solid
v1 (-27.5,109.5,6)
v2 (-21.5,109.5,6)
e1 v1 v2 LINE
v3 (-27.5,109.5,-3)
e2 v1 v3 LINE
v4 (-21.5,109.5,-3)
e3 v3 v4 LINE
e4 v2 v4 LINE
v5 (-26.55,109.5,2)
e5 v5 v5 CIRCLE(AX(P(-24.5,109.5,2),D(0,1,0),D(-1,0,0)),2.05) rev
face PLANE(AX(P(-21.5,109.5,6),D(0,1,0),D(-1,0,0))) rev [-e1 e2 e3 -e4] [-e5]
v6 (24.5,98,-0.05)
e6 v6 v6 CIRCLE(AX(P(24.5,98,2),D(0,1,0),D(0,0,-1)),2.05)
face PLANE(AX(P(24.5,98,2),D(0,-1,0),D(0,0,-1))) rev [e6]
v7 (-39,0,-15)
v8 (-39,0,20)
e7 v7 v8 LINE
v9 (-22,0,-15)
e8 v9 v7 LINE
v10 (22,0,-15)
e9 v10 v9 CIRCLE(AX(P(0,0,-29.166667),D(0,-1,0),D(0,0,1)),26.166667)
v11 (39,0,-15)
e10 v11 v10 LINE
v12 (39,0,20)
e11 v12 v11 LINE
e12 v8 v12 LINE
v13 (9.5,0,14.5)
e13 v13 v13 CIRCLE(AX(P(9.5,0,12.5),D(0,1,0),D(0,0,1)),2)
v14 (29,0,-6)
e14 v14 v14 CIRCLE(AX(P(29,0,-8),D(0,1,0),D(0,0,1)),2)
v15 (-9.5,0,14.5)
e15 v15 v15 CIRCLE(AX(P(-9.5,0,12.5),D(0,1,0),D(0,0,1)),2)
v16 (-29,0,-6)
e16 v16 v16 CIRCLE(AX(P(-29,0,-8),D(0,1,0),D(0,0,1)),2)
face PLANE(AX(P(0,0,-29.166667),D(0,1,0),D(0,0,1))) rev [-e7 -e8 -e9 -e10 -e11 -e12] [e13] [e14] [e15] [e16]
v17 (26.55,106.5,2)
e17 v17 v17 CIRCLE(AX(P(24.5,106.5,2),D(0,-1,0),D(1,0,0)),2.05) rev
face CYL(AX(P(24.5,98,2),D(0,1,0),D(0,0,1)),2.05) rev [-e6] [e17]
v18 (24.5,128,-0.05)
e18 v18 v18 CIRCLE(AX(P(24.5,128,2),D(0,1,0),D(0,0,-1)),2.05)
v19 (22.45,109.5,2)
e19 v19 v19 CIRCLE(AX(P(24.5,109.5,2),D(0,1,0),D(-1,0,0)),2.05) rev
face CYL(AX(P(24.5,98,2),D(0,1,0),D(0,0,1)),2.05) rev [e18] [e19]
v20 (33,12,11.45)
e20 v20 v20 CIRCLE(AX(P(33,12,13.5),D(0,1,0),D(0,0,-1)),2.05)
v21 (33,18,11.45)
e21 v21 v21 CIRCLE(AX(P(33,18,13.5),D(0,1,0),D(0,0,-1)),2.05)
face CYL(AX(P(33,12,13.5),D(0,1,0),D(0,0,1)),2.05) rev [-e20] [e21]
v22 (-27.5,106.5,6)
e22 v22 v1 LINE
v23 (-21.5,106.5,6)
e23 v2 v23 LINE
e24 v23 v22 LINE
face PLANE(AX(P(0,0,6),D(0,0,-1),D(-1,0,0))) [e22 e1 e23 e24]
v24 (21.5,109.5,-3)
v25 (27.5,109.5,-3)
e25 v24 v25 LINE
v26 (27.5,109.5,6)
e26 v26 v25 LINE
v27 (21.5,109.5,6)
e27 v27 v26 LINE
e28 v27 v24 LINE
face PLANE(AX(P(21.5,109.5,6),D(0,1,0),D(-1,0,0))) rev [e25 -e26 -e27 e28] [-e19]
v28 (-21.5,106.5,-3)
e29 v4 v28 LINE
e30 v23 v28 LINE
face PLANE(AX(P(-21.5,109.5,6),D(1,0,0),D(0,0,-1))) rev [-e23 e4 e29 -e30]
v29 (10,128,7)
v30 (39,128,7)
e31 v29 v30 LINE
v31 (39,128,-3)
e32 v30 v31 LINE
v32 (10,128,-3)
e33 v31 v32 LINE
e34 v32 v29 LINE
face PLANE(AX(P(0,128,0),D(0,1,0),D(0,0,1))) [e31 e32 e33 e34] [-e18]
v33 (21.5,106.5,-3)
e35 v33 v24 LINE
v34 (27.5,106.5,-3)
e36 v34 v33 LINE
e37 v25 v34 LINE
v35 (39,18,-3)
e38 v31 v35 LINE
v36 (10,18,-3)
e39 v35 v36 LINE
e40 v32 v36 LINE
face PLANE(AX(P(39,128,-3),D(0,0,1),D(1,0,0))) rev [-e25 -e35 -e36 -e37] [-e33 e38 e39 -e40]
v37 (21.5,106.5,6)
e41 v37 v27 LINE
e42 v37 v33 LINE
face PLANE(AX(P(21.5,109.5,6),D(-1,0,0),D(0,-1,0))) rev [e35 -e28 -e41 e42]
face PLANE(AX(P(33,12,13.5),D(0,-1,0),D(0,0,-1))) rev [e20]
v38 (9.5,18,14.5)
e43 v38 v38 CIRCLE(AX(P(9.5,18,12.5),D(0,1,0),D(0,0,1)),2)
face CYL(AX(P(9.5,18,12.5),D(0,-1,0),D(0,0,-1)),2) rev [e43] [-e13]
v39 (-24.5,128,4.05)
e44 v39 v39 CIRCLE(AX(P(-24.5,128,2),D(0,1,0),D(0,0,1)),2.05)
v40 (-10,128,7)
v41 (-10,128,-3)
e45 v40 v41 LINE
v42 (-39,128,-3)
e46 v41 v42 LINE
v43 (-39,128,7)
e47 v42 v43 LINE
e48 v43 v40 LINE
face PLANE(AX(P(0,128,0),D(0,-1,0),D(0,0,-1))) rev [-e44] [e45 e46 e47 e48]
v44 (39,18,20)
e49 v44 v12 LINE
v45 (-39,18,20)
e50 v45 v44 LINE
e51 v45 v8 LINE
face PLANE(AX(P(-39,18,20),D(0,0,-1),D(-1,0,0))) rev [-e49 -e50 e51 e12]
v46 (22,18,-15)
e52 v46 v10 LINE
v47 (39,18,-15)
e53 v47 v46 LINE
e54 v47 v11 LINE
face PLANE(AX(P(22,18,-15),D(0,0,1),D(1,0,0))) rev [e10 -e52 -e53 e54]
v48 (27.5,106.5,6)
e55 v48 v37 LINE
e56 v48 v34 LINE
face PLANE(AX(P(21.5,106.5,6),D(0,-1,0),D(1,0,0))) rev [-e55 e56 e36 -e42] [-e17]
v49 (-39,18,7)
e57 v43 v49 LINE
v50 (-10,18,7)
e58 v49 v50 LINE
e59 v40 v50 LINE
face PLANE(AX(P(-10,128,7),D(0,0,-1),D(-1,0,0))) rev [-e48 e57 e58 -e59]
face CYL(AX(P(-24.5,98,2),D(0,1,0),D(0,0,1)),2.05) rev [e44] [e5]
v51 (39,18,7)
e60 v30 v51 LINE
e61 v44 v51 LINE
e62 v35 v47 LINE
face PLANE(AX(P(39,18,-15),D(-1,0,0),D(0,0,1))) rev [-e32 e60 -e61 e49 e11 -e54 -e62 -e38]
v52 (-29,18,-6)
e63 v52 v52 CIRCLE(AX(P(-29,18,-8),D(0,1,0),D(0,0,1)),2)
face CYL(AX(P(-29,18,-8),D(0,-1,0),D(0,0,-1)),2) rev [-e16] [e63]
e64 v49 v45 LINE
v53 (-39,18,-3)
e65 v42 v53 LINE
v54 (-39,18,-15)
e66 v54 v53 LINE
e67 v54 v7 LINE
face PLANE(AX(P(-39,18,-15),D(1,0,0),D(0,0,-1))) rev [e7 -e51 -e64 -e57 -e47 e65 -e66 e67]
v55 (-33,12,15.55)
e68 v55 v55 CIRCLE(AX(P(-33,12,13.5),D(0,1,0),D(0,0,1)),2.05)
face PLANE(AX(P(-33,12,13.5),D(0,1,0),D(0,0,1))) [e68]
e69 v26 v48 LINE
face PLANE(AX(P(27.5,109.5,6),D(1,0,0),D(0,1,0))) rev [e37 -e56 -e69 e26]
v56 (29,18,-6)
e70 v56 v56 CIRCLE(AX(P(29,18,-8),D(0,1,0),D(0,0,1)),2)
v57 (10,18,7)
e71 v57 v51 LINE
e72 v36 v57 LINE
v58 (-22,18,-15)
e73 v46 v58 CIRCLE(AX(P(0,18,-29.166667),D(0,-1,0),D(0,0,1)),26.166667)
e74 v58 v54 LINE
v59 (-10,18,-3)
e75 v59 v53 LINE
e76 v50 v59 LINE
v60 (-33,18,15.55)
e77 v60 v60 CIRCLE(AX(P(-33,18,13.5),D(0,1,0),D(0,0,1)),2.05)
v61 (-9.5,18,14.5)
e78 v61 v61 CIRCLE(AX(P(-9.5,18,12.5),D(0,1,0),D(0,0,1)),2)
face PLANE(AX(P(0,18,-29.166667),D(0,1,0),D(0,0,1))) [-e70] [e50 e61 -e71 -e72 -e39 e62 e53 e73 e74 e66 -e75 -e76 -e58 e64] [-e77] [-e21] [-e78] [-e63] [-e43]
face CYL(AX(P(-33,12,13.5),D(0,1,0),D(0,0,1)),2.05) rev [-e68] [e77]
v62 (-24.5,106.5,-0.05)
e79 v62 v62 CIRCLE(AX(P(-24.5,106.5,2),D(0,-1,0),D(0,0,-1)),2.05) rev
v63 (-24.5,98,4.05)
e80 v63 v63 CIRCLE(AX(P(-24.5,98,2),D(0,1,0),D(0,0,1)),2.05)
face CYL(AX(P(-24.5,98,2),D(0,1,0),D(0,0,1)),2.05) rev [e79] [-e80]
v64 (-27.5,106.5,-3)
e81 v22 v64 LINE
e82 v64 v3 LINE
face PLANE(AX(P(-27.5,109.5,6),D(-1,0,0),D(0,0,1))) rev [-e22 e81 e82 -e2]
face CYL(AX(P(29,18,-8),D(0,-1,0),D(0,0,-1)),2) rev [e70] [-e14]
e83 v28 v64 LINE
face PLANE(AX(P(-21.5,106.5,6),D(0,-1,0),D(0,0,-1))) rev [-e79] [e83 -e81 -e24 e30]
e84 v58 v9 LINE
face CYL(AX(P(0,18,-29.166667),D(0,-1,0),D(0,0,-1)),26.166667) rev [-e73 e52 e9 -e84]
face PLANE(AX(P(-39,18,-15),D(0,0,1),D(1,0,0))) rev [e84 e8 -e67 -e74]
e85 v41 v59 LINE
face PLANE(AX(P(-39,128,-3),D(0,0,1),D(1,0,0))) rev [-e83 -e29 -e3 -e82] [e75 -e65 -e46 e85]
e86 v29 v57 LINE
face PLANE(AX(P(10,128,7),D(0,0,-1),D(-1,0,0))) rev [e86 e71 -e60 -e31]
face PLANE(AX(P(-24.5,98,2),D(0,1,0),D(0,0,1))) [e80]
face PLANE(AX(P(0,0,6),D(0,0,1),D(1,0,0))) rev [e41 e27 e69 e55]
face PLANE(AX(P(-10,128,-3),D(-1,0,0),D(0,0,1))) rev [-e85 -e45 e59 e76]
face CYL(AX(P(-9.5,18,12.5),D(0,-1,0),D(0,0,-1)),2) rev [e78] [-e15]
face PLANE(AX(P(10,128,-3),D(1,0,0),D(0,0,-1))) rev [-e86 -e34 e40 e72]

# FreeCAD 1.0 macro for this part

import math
import FreeCAD as App
import Part
import Sketcher
from FreeCAD import Vector
Q = App.Units.Quantity

doc = App.newDocument("Part")
params = doc.addObject("Spreadsheet::Sheet", "Params")
for row, (alias, value) in enumerate([
    ("sketch1_diameter", "4 mm"),
    ("sketch1_width", "17 mm"),
    ("sketch1_width2", "78 mm"),
    ("sketch1_height", "35 mm"),
    ("pad1_length", "18 mm"),
    ("sketch2_width", "29 mm"),
    ("sketch2_height", "10 mm"),
    ("pad2_length", "110 mm"),
    ("sketch3_diameter", "4.1 mm"),
    ("pocket1_length", "6 mm"),
    ("sketch4_diameter", "4.1 mm"),
    ("pocket2_length", "30 mm"),
    ("sketch5_width", "6 mm"),
    ("sketch5_height", "3 mm"),
    ("pocket3_length", "9 mm"),
], start=1):
    params.set(f"A{row}", alias)
    params.set(f"B{row}", "=" + value)
    params.setAlias(f"B{row}", alias)

body = doc.addObject("PartDesign::Body", "Body")

sketch1 = body.newObject("Sketcher::SketchObject", "Sketch")
sketch1.AttachmentSupport = (doc.getObject("XZ_Plane"), [""])
sketch1.MapMode = "FlatFace"
sketch1.addGeometry(Part.LineSegment(Vector(-22, -15, 0), Vector(-39, -15, 0)), False)
sketch1.addGeometry(Part.LineSegment(Vector(-39, -15, 0), Vector(-39, 20, 0)), False)
sketch1.addGeometry(Part.LineSegment(Vector(-39, 20, 0), Vector(39, 20, 0)), False)
sketch1.addGeometry(Part.LineSegment(Vector(39, 20, 0), Vector(39, -15, 0)), False)
sketch1.addGeometry(Part.LineSegment(Vector(39, -15, 0), Vector(22, -15, 0)), False)
sketch1.addGeometry(Part.ArcOfCircle(Part.Circle(Vector(0, -29.166667, 0), Vector(0, 0, 1), 26.166667), math.radians(32.779081), math.radians(147.220919)), False)
sketch1.addGeometry(Part.Circle(Vector(9.5, 12.5, 0), Vector(0, 0, 1), 2), False)
sketch1.addGeometry(Part.Circle(Vector(-9.5, 12.5, 0), Vector(0, 0, 1), 2), False)
sketch1.addGeometry(Part.Circle(Vector(29, -8, 0), Vector(0, 0, 1), 2), False)
sketch1.addGeometry(Part.Circle(Vector(-29, -8, 0), Vector(0, 0, 1), 2), False)
sketch1.addConstraint(Sketcher.Constraint("Coincident", 0, 2, 1, 1))
sketch1.addConstraint(Sketcher.Constraint("Coincident", 1, 2, 2, 1))
sketch1.addConstraint(Sketcher.Constraint("Coincident", 2, 2, 3, 1))
sketch1.addConstraint(Sketcher.Constraint("Coincident", 3, 2, 4, 1))
sketch1.addConstraint(Sketcher.Constraint("Coincident", 4, 2, 5, 1))
sketch1.addConstraint(Sketcher.Constraint("Coincident", 5, 2, 0, 1))
sketch1.addConstraint(Sketcher.Constraint("Horizontal", 0))
sketch1.addConstraint(Sketcher.Constraint("Vertical", 1))
sketch1.addConstraint(Sketcher.Constraint("Horizontal", 2))
sketch1.addConstraint(Sketcher.Constraint("Vertical", 3))
sketch1.addConstraint(Sketcher.Constraint("Horizontal", 4))
sketch1.addConstraint(Sketcher.Constraint("Equal", 6, 7))
sketch1.addConstraint(Sketcher.Constraint("Equal", 7, 8))
sketch1.addConstraint(Sketcher.Constraint("Equal", 8, 9))
sketch1.addConstraint(Sketcher.Constraint("Symmetric", 6, 3, 7, 3, -2))
sketch1.addConstraint(Sketcher.Constraint("Symmetric", 8, 3, 9, 3, -2))
sketch1.addConstraint(Sketcher.Constraint("Symmetric", 0, 2, 3, 2, -2))
sketch1.addConstraint(Sketcher.Constraint("PointOnObject", 5, 3, -2))
sketch1.addConstraint(Sketcher.Constraint("Diameter", 6, Q("4 mm")))
sketch1.addConstraint(Sketcher.Constraint("DistanceX", 0, 2, 0, 1, Q("17 mm")))
sketch1.addConstraint(Sketcher.Constraint("DistanceX", 2, 1, 2, 2, Q("78 mm")))
sketch1.addConstraint(Sketcher.Constraint("DistanceY", 1, 1, 1, 2, Q("35 mm")))
sketch1.addConstraint(Sketcher.Constraint("DistanceX", -1, 1, 8, 3, Q("29 mm")))
sketch1.addConstraint(Sketcher.Constraint("DistanceY", 8, 3, -1, 1, Q("8 mm")))
sketch1.addConstraint(Sketcher.Constraint("DistanceY", 0, 2, -1, 1, Q("15 mm")))
sketch1.addConstraint(Sketcher.Constraint("DistanceX", 7, 3, 6, 3, Q("19 mm")))
sketch1.addConstraint(Sketcher.Constraint("DistanceY", -1, 1, 6, 3, Q("12.5 mm")))
sketch1.addConstraint(Sketcher.Constraint("Radius", 5, Q("26.166667 mm")))
sketch1.setExpression("Constraints[18]", "Params.sketch1_diameter")
sketch1.setExpression("Constraints[19]", "Params.sketch1_width")
sketch1.setExpression("Constraints[20]", "Params.sketch1_width2")
sketch1.setExpression("Constraints[21]", "Params.sketch1_height")
pad1 = body.newObject("PartDesign::Pad", "Pad")
pad1.Profile = sketch1
pad1.setExpression("Length", "Params.pad1_length")
pad1.Reversed = True

sketch2 = body.newObject("Sketcher::SketchObject", "Sketch001")
sketch2.AttachmentSupport = (doc.getObject("XZ_Plane"), [""])
sketch2.MapMode = "FlatFace"
sketch2.AttachmentOffset = App.Placement(Vector(0, 0, -18), App.Rotation())
sketch2.addGeometry(Part.LineSegment(Vector(-39, -3, 0), Vector(-39, 7, 0)), False)
sketch2.addGeometry(Part.LineSegment(Vector(-39, 7, 0), Vector(-10, 7, 0)), False)
sketch2.addGeometry(Part.LineSegment(Vector(-10, 7, 0), Vector(-10, -3, 0)), False)
sketch2.addGeometry(Part.LineSegment(Vector(-10, -3, 0), Vector(-39, -3, 0)), False)
sketch2.addGeometry(Part.LineSegment(Vector(10, -3, 0), Vector(10, 7, 0)), False)
sketch2.addGeometry(Part.LineSegment(Vector(10, 7, 0), Vector(39, 7, 0)), False)
sketch2.addGeometry(Part.LineSegment(Vector(39, 7, 0), Vector(39, -3, 0)), False)
sketch2.addGeometry(Part.LineSegment(Vector(39, -3, 0), Vector(10, -3, 0)), False)
sketch2.addConstraint(Sketcher.Constraint("Coincident", 0, 2, 1, 1))
sketch2.addConstraint(Sketcher.Constraint("Coincident", 1, 2, 2, 1))
sketch2.addConstraint(Sketcher.Constraint("Coincident", 2, 2, 3, 1))
sketch2.addConstraint(Sketcher.Constraint("Coincident", 3, 2, 0, 1))
sketch2.addConstraint(Sketcher.Constraint("Coincident", 4, 2, 5, 1))
sketch2.addConstraint(Sketcher.Constraint("Coincident", 5, 2, 6, 1))
sketch2.addConstraint(Sketcher.Constraint("Coincident", 6, 2, 7, 1))
sketch2.addConstraint(Sketcher.Constraint("Coincident", 7, 2, 4, 1))
sketch2.addConstraint(Sketcher.Constraint("Vertical", 0))
sketch2.addConstraint(Sketcher.Constraint("Horizontal", 1))
sketch2.addConstraint(Sketcher.Constraint("Vertical", 2))
sketch2.addConstraint(Sketcher.Constraint("Horizontal", 3))
sketch2.addConstraint(Sketcher.Constraint("Vertical", 4))
sketch2.addConstraint(Sketcher.Constraint("Horizontal", 5))
sketch2.addConstraint(Sketcher.Constraint("Vertical", 6))
sketch2.addConstraint(Sketcher.Constraint("Horizontal", 7))
sketch2.addConstraint(Sketcher.Constraint("Symmetric", 1, 2, 4, 2, -2))
sketch2.addConstraint(Sketcher.Constraint("Symmetric", 3, 2, 6, 2, -2))
sketch2.addConstraint(Sketcher.Constraint("DistanceX", 1, 1, 1, 2, Q("29 mm")))
sketch2.addConstraint(Sketcher.Constraint("DistanceY", 0, 1, 0, 2, Q("10 mm")))
sketch2.addConstraint(Sketcher.Constraint("DistanceX", 0, 2, -1, 1, Q("39 mm")))
sketch2.addConstraint(Sketcher.Constraint("DistanceY", -1, 1, 0, 2, Q("7 mm")))
sketch2.setExpression("Constraints[18]", "Params.sketch2_width")
sketch2.setExpression("Constraints[19]", "Params.sketch2_height")
pad2 = body.newObject("PartDesign::Pad", "Pad001")
pad2.Profile = sketch2
pad2.setExpression("Length", "Params.pad2_length")
pad2.Reversed = True

sketch3 = body.newObject("Sketcher::SketchObject", "Sketch002")
sketch3.AttachmentSupport = (doc.getObject("XZ_Plane"), [""])
sketch3.MapMode = "FlatFace"
sketch3.AttachmentOffset = App.Placement(Vector(0, 0, -18), App.Rotation())
sketch3.addGeometry(Part.Circle(Vector(-33, 13.5, 0), Vector(0, 0, 1), 2.05), False)
sketch3.addGeometry(Part.Circle(Vector(33, 13.5, 0), Vector(0, 0, 1), 2.05), False)
sketch3.addConstraint(Sketcher.Constraint("Equal", 0, 1))
sketch3.addConstraint(Sketcher.Constraint("Symmetric", 0, 3, 1, 3, -2))
sketch3.addConstraint(Sketcher.Constraint("Diameter", 0, Q("4.1 mm")))
sketch3.addConstraint(Sketcher.Constraint("DistanceX", 0, 3, -1, 1, Q("33 mm")))
sketch3.addConstraint(Sketcher.Constraint("DistanceY", -1, 1, 0, 3, Q("13.5 mm")))
sketch3.setExpression("Constraints[2]", "Params.sketch3_diameter")
pocket1 = body.newObject("PartDesign::Pocket", "Pocket")
pocket1.Profile = sketch3
pocket1.setExpression("Length", "Params.pocket1_length")
pocket1.Reversed = True

sketch4 = body.newObject("Sketcher::SketchObject", "Sketch003")
sketch4.AttachmentSupport = (doc.getObject("XZ_Plane"), [""])
sketch4.MapMode = "FlatFace"
sketch4.AttachmentOffset = App.Placement(Vector(0, 0, -128), App.Rotation())
sketch4.addGeometry(Part.Circle(Vector(-24.5, 2, 0), Vector(0, 0, 1), 2.05), False)
sketch4.addGeometry(Part.Circle(Vector(24.5, 2, 0), Vector(0, 0, 1), 2.05), False)
sketch4.addConstraint(Sketcher.Constraint("Equal", 0, 1))
sketch4.addConstraint(Sketcher.Constraint("Symmetric", 0, 3, 1, 3, -2))
sketch4.addConstraint(Sketcher.Constraint("Diameter", 0, Q("4.1 mm")))
sketch4.addConstraint(Sketcher.Constraint("DistanceY", -1, 1, 0, 3, Q("2 mm")))
sketch4.addConstraint(Sketcher.Constraint("DistanceX", 0, 3, 1, 3, Q("49 mm")))
sketch4.setExpression("Constraints[2]", "Params.sketch4_diameter")
pocket2 = body.newObject("PartDesign::Pocket", "Pocket001")
pocket2.Profile = sketch4
pocket2.setExpression("Length", "Params.pocket2_length")
pocket2.Reversed = True

sketch5 = body.newObject("Sketcher::SketchObject", "Sketch004")
sketch5.AttachmentSupport = (doc.getObject("XY_Plane"), [""])
sketch5.MapMode = "FlatFace"
sketch5.AttachmentOffset = App.Placement(Vector(0, 0, -3), App.Rotation())
sketch5.addGeometry(Part.LineSegment(Vector(-21.5, 109.5, 0), Vector(-21.5, 106.5, 0)), False)
sketch5.addGeometry(Part.LineSegment(Vector(-21.5, 106.5, 0), Vector(-27.5, 106.5, 0)), False)
sketch5.addGeometry(Part.LineSegment(Vector(-27.5, 106.5, 0), Vector(-27.5, 109.5, 0)), False)
sketch5.addGeometry(Part.LineSegment(Vector(-27.5, 109.5, 0), Vector(-21.5, 109.5, 0)), False)
sketch5.addGeometry(Part.LineSegment(Vector(27.5, 109.5, 0), Vector(27.5, 106.5, 0)), False)
sketch5.addGeometry(Part.LineSegment(Vector(27.5, 106.5, 0), Vector(21.5, 106.5, 0)), False)
sketch5.addGeometry(Part.LineSegment(Vector(21.5, 106.5, 0), Vector(21.5, 109.5, 0)), False)
sketch5.addGeometry(Part.LineSegment(Vector(21.5, 109.5, 0), Vector(27.5, 109.5, 0)), False)
sketch5.addConstraint(Sketcher.Constraint("Coincident", 0, 2, 1, 1))
sketch5.addConstraint(Sketcher.Constraint("Coincident", 1, 2, 2, 1))
sketch5.addConstraint(Sketcher.Constraint("Coincident", 2, 2, 3, 1))
sketch5.addConstraint(Sketcher.Constraint("Coincident", 3, 2, 0, 1))
sketch5.addConstraint(Sketcher.Constraint("Coincident", 4, 2, 5, 1))
sketch5.addConstraint(Sketcher.Constraint("Coincident", 5, 2, 6, 1))
sketch5.addConstraint(Sketcher.Constraint("Coincident", 6, 2, 7, 1))
sketch5.addConstraint(Sketcher.Constraint("Coincident", 7, 2, 4, 1))
sketch5.addConstraint(Sketcher.Constraint("Vertical", 0))
sketch5.addConstraint(Sketcher.Constraint("Horizontal", 1))
sketch5.addConstraint(Sketcher.Constraint("Vertical", 2))
sketch5.addConstraint(Sketcher.Constraint("Horizontal", 3))
sketch5.addConstraint(Sketcher.Constraint("Vertical", 4))
sketch5.addConstraint(Sketcher.Constraint("Horizontal", 5))
sketch5.addConstraint(Sketcher.Constraint("Vertical", 6))
sketch5.addConstraint(Sketcher.Constraint("Horizontal", 7))
sketch5.addConstraint(Sketcher.Constraint("Symmetric", 1, 2, 4, 2, -2))
sketch5.addConstraint(Sketcher.Constraint("Symmetric", 3, 2, 6, 2, -2))
sketch5.addConstraint(Sketcher.Constraint("DistanceX", 1, 2, 1, 1, Q("6 mm")))
sketch5.addConstraint(Sketcher.Constraint("DistanceY", 0, 2, 0, 1, Q("3 mm")))
sketch5.addConstraint(Sketcher.Constraint("DistanceX", 0, 2, 4, 2, Q("49 mm")))
sketch5.addConstraint(Sketcher.Constraint("DistanceY", -1, 1, 0, 2, Q("106.5 mm")))
sketch5.setExpression("Constraints[18]", "Params.sketch5_width")
sketch5.setExpression("Constraints[19]", "Params.sketch5_height")
pocket3 = body.newObject("PartDesign::Pocket", "Pocket002")
pocket3.Profile = sketch5
pocket3.setExpression("Length", "Params.pocket3_length")
pocket3.Reversed = True

doc.recompute()
